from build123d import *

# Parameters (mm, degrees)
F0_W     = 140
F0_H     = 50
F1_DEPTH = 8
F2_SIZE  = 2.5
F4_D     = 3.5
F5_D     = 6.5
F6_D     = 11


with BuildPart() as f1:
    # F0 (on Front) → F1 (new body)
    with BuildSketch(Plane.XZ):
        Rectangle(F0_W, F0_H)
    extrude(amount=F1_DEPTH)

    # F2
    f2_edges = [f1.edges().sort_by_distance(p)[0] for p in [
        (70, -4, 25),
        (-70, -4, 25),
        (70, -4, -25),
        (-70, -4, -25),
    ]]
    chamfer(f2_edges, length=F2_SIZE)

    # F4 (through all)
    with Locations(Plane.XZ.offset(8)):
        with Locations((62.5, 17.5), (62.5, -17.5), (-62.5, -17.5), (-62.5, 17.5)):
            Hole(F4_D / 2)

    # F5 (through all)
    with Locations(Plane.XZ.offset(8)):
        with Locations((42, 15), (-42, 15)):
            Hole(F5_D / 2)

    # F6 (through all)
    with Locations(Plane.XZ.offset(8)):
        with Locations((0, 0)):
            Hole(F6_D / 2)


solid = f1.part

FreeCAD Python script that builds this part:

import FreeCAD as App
import Part
import Sketcher
Q = App.Units.Quantity


def edges_at(feature, points):
    """Names of the edges that pass closest to the given points."""
    edges = feature.Shape.Edges
    near = lambda p: min(range(len(edges)), key=lambda i: edges[i].distToShape(Part.Vertex(*p))[0])
    return sorted({f"Edge{near(p) + 1}" for p in points})

doc = App.newDocument("Part")
body = doc.addObject("PartDesign::Body", "Body")

sketch1 = doc.addObject("Sketcher::SketchObject", "Sketch")
body.addObject(sketch1)
sketch1.AttachmentSupport = (doc.XZ_Plane, [""])
sketch1.MapMode = "FlatFace"
sketch1.addGeometry(Part.LineSegment(App.Vector(-70, 25, 0), App.Vector(-70, -25, 0)), False)
sketch1.addGeometry(Part.LineSegment(App.Vector(-70, -25, 0), App.Vector(70, -25, 0)), False)
sketch1.addGeometry(Part.LineSegment(App.Vector(70, -25, 0), App.Vector(70, 25, 0)), False)
sketch1.addGeometry(Part.LineSegment(App.Vector(70, 25, 0), App.Vector(-70, 25, 0)), False)
sketch1.addConstraint(Sketcher.Constraint("Coincident", 0, 2, 1, 1))
sketch1.addConstraint(Sketcher.Constraint("Coincident", 1, 2, 2, 1))
sketch1.addConstraint(Sketcher.Constraint("Coincident", 2, 2, 3, 1))
sketch1.addConstraint(Sketcher.Constraint("Coincident", 3, 2, 0, 1))
sketch1.addConstraint(Sketcher.Constraint("Vertical", 0))
sketch1.addConstraint(Sketcher.Constraint("Horizontal", 1))
sketch1.addConstraint(Sketcher.Constraint("Vertical", 2))
sketch1.addConstraint(Sketcher.Constraint("Horizontal", 3))
sketch1.addConstraint(Sketcher.Constraint("Symmetric", 0, 2, 2, 2, -1, 1))
sketch1.addConstraint(Sketcher.Constraint("DistanceX", 1, 1, 1, 2, Q("140 mm")))
sketch1.addConstraint(Sketcher.Constraint("DistanceY", 0, 2, 0, 1, Q("50 mm")))
pad1 = doc.addObject("PartDesign::Pad", "Pad")
body.addObject(pad1)
pad1.Profile = sketch1
pad1.Length = 8
doc.recompute()

chamfer = doc.addObject("PartDesign::Chamfer", "Chamfer")
body.addObject(chamfer)
chamfer.Base = (pad1, edges_at(pad1, [
    (70, -4, 25),
    (-70, -4, 25),
    (70, -4, -25),
    (-70, -4, -25),
]))
chamfer.Size = 2.5

sketch2 = doc.addObject("Sketcher::SketchObject", "Sketch001")
body.addObject(sketch2)
sketch2.AttachmentSupport = (doc.XZ_Plane, [""])
sketch2.MapMode = "FlatFace"
sketch2.AttachmentOffset = App.Placement(App.Vector(0, 0, 8), App.Rotation())
sketch2.addGeometry(Part.Circle(App.Vector(62.5, 17.5, 0), App.Vector(0, 0, 1), 1.75), False)
sketch2.addGeometry(Part.Circle(App.Vector(62.5, -17.5, 0), App.Vector(0, 0, 1), 1.75), False)
sketch2.addGeometry(Part.Circle(App.Vector(-62.5, -17.5, 0), App.Vector(0, 0, 1), 1.75), False)
sketch2.addGeometry(Part.Circle(App.Vector(-62.5, 17.5, 0), App.Vector(0, 0, 1), 1.75), False)
sketch2.addConstraint(Sketcher.Constraint("Equal", 0, 1))
sketch2.addConstraint(Sketcher.Constraint("Equal", 1, 2))
sketch2.addConstraint(Sketcher.Constraint("Equal", 2, 3))
sketch2.addConstraint(Sketcher.Constraint("Symmetric", 0, 3, 2, 3, -1, 1))
sketch2.addConstraint(Sketcher.Constraint("Symmetric", 1, 3, 3, 3, -1, 1))
sketch2.addConstraint(Sketcher.Constraint("Symmetric", 1, 3, 2, 3, -2))
sketch2.addConstraint(Sketcher.Constraint("Diameter", 0, Q("3.5 mm")))
sketch2.addConstraint(Sketcher.Constraint("DistanceY", 1, 3, 0, 3, Q("35 mm")))
sketch2.addConstraint(Sketcher.Constraint("DistanceX", 2, 3, 1, 3, Q("125 mm")))
doc.recompute()
hole = doc.addObject("PartDesign::Hole", "Hole")
body.addObject(hole)
hole.Profile = sketch2
hole.ThreadType = "None"
hole.Diameter = 3.5
hole.DepthType = "ThroughAll"

sketch3 = doc.addObject("Sketcher::SketchObject", "Sketch002")
body.addObject(sketch3)
sketch3.AttachmentSupport = (doc.XZ_Plane, [""])
sketch3.MapMode = "FlatFace"
sketch3.AttachmentOffset = App.Placement(App.Vector(0, 0, 8), App.Rotation())
sketch3.addGeometry(Part.Circle(App.Vector(42, 15, 0), App.Vector(0, 0, 1), 3.25), False)
sketch3.addGeometry(Part.Circle(App.Vector(-42, 15, 0), App.Vector(0, 0, 1), 3.25), False)
sketch3.addConstraint(Sketcher.Constraint("Equal", 0, 1))
sketch3.addConstraint(Sketcher.Constraint("Symmetric", 0, 3, 1, 3, -2))
sketch3.addConstraint(Sketcher.Constraint("Diameter", 0, Q("6.5 mm")))
sketch3.addConstraint(Sketcher.Constraint("DistanceX", -1, 1, 0, 3, Q("42 mm")))
sketch3.addConstraint(Sketcher.Constraint("DistanceY", -1, 1, 0, 3, Q("15 mm")))
doc.recompute()
hole2 = doc.addObject("PartDesign::Hole", "Hole001")
body.addObject(hole2)
hole2.Profile = sketch3
hole2.ThreadType = "None"
hole2.Diameter = 6.5
hole2.DepthType = "ThroughAll"

sketch4 = doc.addObject("Sketcher::SketchObject", "Sketch003")
body.addObject(sketch4)
sketch4.AttachmentSupport = (doc.XZ_Plane, [""])
sketch4.MapMode = "FlatFace"
sketch4.AttachmentOffset = App.Placement(App.Vector(0, 0, 8), App.Rotation())
sketch4.addGeometry(Part.Circle(App.Vector(0, 0, 0), App.Vector(0, 0, 1), 5.5), False)
sketch4.addConstraint(Sketcher.Constraint("Coincident", 0, 3, -1, 1))
sketch4.addConstraint(Sketcher.Constraint("Diameter", 0, Q("11 mm")))
doc.recompute()
hole3 = doc.addObject("PartDesign::Hole", "Hole002")
body.addObject(hole3)
hole3.Profile = sketch4
hole3.ThreadType = "None"
hole3.Diameter = 11
hole3.DepthType = "ThroughAll"

doc.recompute()
